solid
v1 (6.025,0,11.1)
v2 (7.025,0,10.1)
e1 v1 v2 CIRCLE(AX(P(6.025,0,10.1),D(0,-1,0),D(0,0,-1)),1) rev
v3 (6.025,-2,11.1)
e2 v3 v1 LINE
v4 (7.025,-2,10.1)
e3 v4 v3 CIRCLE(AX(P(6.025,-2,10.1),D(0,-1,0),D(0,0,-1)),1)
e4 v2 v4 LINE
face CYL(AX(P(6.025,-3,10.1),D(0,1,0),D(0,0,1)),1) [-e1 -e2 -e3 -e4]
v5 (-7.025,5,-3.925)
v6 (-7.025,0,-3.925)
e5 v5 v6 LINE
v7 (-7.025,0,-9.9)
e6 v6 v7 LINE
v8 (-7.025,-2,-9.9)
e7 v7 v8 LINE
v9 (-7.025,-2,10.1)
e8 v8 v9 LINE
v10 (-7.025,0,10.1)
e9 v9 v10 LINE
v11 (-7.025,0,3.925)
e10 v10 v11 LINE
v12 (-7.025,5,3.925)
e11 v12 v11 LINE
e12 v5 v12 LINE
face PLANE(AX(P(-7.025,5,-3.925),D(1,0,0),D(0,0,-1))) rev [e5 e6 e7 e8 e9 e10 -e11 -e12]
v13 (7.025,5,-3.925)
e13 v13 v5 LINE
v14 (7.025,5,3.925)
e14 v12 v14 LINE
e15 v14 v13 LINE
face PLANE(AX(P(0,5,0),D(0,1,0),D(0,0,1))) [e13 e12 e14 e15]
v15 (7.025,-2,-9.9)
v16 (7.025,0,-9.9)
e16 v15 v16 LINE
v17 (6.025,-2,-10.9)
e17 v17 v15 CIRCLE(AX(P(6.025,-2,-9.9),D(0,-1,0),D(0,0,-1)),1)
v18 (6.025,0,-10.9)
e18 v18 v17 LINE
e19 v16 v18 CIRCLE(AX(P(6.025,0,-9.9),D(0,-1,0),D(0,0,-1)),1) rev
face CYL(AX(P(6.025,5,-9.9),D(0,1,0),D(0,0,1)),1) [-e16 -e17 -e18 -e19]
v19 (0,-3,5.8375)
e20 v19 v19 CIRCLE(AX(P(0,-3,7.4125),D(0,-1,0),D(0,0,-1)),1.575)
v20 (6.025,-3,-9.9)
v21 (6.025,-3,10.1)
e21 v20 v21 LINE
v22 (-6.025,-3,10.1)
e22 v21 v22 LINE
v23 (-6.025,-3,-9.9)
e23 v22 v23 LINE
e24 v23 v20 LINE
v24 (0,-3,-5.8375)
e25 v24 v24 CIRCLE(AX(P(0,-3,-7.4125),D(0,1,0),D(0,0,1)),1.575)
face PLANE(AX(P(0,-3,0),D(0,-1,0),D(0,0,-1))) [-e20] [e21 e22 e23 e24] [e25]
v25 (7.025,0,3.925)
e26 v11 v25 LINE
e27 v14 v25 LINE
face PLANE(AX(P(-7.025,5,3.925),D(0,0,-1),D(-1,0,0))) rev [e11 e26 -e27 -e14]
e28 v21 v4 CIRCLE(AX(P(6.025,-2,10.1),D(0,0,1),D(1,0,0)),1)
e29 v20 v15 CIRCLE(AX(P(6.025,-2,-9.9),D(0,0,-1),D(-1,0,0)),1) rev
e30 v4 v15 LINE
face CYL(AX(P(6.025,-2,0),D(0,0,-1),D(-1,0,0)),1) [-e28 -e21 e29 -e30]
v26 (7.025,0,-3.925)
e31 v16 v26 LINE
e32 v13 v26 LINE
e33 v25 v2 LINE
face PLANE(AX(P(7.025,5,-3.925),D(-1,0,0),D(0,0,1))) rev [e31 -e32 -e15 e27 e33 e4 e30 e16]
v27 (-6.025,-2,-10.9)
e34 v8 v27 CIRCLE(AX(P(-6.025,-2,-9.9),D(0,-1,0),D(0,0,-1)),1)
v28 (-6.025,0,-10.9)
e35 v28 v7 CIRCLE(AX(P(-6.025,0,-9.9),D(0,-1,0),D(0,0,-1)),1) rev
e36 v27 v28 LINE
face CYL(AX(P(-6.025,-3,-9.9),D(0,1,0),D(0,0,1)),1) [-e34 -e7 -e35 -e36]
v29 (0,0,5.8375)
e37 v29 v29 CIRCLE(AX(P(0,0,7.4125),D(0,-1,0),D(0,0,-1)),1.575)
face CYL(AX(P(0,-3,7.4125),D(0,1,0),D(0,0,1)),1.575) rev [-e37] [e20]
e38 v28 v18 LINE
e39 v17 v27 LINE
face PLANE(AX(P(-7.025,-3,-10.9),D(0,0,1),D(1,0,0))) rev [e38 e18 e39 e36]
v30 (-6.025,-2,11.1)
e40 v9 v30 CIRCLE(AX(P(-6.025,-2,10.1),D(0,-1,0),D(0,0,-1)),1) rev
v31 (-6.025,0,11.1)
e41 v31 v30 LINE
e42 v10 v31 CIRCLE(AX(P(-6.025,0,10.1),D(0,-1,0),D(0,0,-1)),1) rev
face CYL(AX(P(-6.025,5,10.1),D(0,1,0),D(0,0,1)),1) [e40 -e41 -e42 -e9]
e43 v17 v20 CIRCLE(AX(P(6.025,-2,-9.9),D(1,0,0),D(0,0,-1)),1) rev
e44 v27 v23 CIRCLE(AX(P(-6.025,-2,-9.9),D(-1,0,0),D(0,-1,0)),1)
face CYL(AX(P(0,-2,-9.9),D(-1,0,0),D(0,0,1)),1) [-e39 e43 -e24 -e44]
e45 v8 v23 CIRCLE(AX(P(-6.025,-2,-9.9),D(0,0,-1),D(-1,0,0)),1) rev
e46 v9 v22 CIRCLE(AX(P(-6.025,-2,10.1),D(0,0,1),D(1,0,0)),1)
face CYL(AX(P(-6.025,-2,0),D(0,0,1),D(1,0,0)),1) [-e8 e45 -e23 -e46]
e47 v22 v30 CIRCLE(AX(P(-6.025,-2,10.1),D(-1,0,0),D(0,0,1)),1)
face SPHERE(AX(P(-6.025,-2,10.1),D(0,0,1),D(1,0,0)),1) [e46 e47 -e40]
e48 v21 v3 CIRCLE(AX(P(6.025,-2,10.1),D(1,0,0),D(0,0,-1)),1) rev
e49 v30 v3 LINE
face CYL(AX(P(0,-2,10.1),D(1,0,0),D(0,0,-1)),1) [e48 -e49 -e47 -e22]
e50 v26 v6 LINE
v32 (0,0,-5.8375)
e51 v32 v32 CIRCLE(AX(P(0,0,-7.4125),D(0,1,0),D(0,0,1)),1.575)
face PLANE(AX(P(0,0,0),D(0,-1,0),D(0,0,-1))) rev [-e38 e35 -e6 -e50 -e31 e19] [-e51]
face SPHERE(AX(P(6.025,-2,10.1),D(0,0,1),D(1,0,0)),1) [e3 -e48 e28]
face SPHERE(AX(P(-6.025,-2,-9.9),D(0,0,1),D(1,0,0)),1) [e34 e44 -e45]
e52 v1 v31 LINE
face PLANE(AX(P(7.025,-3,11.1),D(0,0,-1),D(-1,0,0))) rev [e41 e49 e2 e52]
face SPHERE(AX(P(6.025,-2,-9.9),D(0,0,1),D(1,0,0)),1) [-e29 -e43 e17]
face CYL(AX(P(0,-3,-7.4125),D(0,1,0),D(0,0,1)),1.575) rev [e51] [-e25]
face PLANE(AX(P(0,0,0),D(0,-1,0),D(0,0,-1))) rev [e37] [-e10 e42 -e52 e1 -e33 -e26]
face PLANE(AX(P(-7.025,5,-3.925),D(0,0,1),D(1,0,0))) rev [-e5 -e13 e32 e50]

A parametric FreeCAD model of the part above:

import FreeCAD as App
import Part
import Sketcher

V = App.Vector
Q = App.Units.Quantity


def edges_at(feature, points):
    """Names of the edges that pass closest to the given points."""
    edges = feature.Shape.Edges
    near = lambda p: min(range(len(edges)), key=lambda i: edges[i].distToShape(Part.Vertex(*p))[0])
    return sorted({f"Edge{near(p) + 1}" for p in points})

doc = App.newDocument("Part")
body = doc.addObject("PartDesign::Body", "Body")

# Sketch on XZ plane
sketch1 = doc.addObject("Sketcher::SketchObject", "Sketch")
body.addObject(sketch1)
sketch1.AttachmentSupport = (doc.XZ_Plane, [""])
sketch1.MapMode = "FlatFace"
sketch1.addGeometry(Part.LineSegment(V(-7, -4, 0), V(-7, 4, 0)), False)
sketch1.addGeometry(Part.LineSegment(V(-7, 4, 0), V(7, 4, 0)), False)
sketch1.addGeometry(Part.LineSegment(V(7, 4, 0), V(7, -4, 0)), False)
sketch1.addGeometry(Part.LineSegment(V(7, -4, 0), V(-7, -4, 0)), False)
sketch1.addConstraint(Sketcher.Constraint("Coincident", 0, 2, 1, 1))
sketch1.addConstraint(Sketcher.Constraint("Coincident", 1, 2, 2, 1))
sketch1.addConstraint(Sketcher.Constraint("Coincident", 2, 2, 3, 1))
sketch1.addConstraint(Sketcher.Constraint("Coincident", 3, 2, 0, 1))
sketch1.addConstraint(Sketcher.Constraint("Vertical", 0))
sketch1.addConstraint(Sketcher.Constraint("Horizontal", 1))
sketch1.addConstraint(Sketcher.Constraint("Vertical", 2))
sketch1.addConstraint(Sketcher.Constraint("Horizontal", 3))
sketch1.addConstraint(Sketcher.Constraint("Symmetric", 0, 2, 2, 2, -1, 1))
sketch1.addConstraint(Sketcher.Constraint("DistanceX", 1, 1, 1, 2, Q("14.05 mm")))
sketch1.addConstraint(Sketcher.Constraint("DistanceY", 0, 1, 0, 2, Q("7.85 mm")))
pad1 = doc.addObject("PartDesign::Pad", "Pad")
body.addObject(pad1)
pad1.Profile = sketch1
pad1.Length = 5
pad1.Reversed = True

# Sketch on XZ plane
sketch2 = doc.addObject("Sketcher::SketchObject", "Sketch001")
body.addObject(sketch2)
sketch2.AttachmentSupport = (doc.XZ_Plane, [""])
sketch2.MapMode = "FlatFace"
sketch2.addGeometry(Part.LineSegment(V(7, -11, 0), V(7, 11, 0)), False)
sketch2.addGeometry(Part.LineSegment(V(7, 11, 0), V(-7, 11, 0)), False)
sketch2.addGeometry(Part.LineSegment(V(-7, 11, 0), V(-7, -11, 0)), False)
sketch2.addGeometry(Part.LineSegment(V(-7, -11, 0), V(7, -11, 0)), False)
sketch2.addConstraint(Sketcher.Constraint("Coincident", 0, 2, 1, 1))
sketch2.addConstraint(Sketcher.Constraint("Coincident", 1, 2, 2, 1))
sketch2.addConstraint(Sketcher.Constraint("Coincident", 2, 2, 3, 1))
sketch2.addConstraint(Sketcher.Constraint("Coincident", 3, 2, 0, 1))
sketch2.addConstraint(Sketcher.Constraint("Vertical", 0))
sketch2.addConstraint(Sketcher.Constraint("Horizontal", 1))
sketch2.addConstraint(Sketcher.Constraint("Vertical", 2))
sketch2.addConstraint(Sketcher.Constraint("Horizontal", 3))
sketch2.addConstraint(Sketcher.Constraint("DistanceY", 0, 1, 0, 2, Q("22 mm")))
sketch2.addConstraint(Sketcher.Constraint("DistanceX", 1, 2, 1, 1, Q("14.05 mm")))
sketch2.addConstraint(Sketcher.Constraint("DistanceY", -1, 1, 0, 2, Q("11.1 mm")))
sketch2.addConstraint(Sketcher.Constraint("DistanceX", -1, 1, 0, 2, Q("7.025 mm")))
pad2 = doc.addObject("PartDesign::Pad", "Pad001")
body.addObject(pad2)
pad2.Profile = sketch2
pad2.Length = 3

# Sketch on XZ plane
sketch3 = doc.addObject("Sketcher::SketchObject", "Sketch002")
body.addObject(sketch3)
sketch3.AttachmentSupport = (doc.XZ_Plane, [""])
sketch3.MapMode = "FlatFace"
sketch3.addGeometry(Part.Circle(V(0, -7.4, 0), V(0, 0, 1), 1.6), False)
sketch3.addConstraint(Sketcher.Constraint("PointOnObject", 0, 3, -2))
sketch3.addConstraint(Sketcher.Constraint("Diameter", 0, Q("3.15 mm")))
sketch3.addConstraint(Sketcher.Constraint("DistanceY", 0, 3, -1, 1, Q("7.4125 mm")))
pocket1 = doc.addObject("PartDesign::Pocket", "Pocket")
body.addObject(pocket1)
pocket1.Profile = sketch3
pocket1.Length = 3
pocket1.Reversed = True
doc.recompute()

mirrored = doc.addObject("PartDesign::Mirrored", "Mirrored")
body.addObject(mirrored)
mirrored.Originals = [pocket1]
mirrored.MirrorPlane = (doc.XY_Plane, [""])
body.Tip = mirrored
doc.recompute()

fillet = doc.addObject("PartDesign::Fillet", "Fillet")
body.addObject(fillet)
fillet.Base = (mirrored, edges_at(mirrored, [
    (7.025, -1.5, 11.1),
    (-7.025, -1.5, 11.1),
    (-7.025, -1.5, -10.9),
    (7.025, -1.5, -10.9),
    (7.025, -3, 0.1),
    (0, -3, 11.1),
    (-7.025, -3, 0.1),
    (0, -3, -10.9),
]))
fillet.Radius = 1

doc.recompute()
